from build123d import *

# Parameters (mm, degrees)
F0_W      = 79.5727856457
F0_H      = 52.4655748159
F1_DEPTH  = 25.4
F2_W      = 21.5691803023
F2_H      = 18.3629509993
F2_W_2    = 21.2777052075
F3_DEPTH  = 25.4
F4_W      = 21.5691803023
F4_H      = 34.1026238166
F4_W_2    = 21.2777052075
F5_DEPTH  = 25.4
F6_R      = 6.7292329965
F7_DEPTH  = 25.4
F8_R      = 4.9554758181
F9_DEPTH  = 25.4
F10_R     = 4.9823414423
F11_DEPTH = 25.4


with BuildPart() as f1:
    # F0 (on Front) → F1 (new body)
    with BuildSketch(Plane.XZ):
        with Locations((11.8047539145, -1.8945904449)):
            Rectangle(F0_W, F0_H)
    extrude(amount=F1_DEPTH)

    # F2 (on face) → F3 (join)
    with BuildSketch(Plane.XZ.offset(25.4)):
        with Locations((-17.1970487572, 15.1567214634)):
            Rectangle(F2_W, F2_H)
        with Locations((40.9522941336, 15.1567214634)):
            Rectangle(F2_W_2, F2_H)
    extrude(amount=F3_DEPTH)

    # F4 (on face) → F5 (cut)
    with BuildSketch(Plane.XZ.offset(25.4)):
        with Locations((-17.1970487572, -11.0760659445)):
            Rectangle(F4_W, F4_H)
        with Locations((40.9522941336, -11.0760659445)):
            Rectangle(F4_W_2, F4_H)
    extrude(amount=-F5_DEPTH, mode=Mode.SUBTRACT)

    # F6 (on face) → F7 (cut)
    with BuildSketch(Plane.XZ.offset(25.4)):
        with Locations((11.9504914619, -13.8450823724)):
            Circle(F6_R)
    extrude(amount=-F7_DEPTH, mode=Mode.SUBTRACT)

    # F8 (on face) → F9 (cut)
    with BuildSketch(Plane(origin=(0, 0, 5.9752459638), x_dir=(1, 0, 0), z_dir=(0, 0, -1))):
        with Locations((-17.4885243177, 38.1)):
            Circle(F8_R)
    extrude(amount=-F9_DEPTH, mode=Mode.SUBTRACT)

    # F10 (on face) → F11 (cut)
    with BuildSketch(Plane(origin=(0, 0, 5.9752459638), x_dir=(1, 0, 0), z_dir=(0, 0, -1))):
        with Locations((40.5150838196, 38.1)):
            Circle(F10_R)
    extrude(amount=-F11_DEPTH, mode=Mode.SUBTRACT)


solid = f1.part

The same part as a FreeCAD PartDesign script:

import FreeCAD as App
import Part
import Sketcher

V = App.Vector
Q = App.Units.Quantity


def add_polygon(sketch, points):
    """Adds a closed chain of lines whose ends are joined by coincident constraints."""
    first, n = sketch.GeometryCount, len(points)
    for a, b in zip(points, points[1:] + points[:1]):
        sketch.addGeometry(Part.LineSegment(App.Vector(*a, 0), App.Vector(*b, 0)), False)
    for i in range(n):
        sketch.addConstraint(Sketcher.Constraint("Coincident", first + i, 2, first + (i + 1) % n, 1))

doc = App.newDocument("Part")
body = doc.addObject("PartDesign::Body", "Body")

# Sketch on XZ plane
sketch1 = body.newObject("Sketcher::SketchObject", "Sketch")
sketch1.AttachmentSupport = (doc.getObject("XZ_Plane"), [""])
sketch1.MapMode = "FlatFace"
add_polygon(sketch1, [(-28, 24), (-28, -28), (52, -28), (52, 24)])  # lines 0-3
sketch1.addConstraint([
    Sketcher.Constraint("Vertical", 0),
    Sketcher.Constraint("Horizontal", 1),
    Sketcher.Constraint("Vertical", 2),
    Sketcher.Constraint("Horizontal", 3),
    Sketcher.Constraint("DistanceX", 1, 1, 1, 2, Q("79.572786 mm")),
    Sketcher.Constraint("DistanceY", 0, 2, 0, 1, Q("52.465575 mm")),
    Sketcher.Constraint("DistanceX", 0, 2, -1, 1, Q("27.981639 mm")),
    Sketcher.Constraint("DistanceY", 0, 2, -1, 1, Q("28.127378 mm")),
])
pad1 = body.newObject("PartDesign::Pad", "Pad")
pad1.Profile = sketch1
pad1.Length = Q("1 in")

# Sketch on XZ plane
sketch2 = body.newObject("Sketcher::SketchObject", "Sketch001")
sketch2.AttachmentSupport = (doc.getObject("XZ_Plane"), [""])
sketch2.MapMode = "FlatFace"
sketch2.AttachmentOffset = App.Placement(V(0, 0, 1 * 25.4), App.Rotation())
add_polygon(sketch2, [(-28, 24), (-28, 6), (-6, 6), (-6, 24)])  # lines 0-3
add_polygon(sketch2, [(30, 24), (30, 6), (52, 6), (52, 24)])  # lines 4-7
sketch2.addConstraint([
    Sketcher.Constraint("Vertical", 0),
    Sketcher.Constraint("Horizontal", 1),
    Sketcher.Constraint("Vertical", 2),
    Sketcher.Constraint("Horizontal", 3),
    Sketcher.Constraint("Vertical", 4),
    Sketcher.Constraint("Horizontal", 5),
    Sketcher.Constraint("Vertical", 6),
    Sketcher.Constraint("Horizontal", 7),
    Sketcher.Constraint("Horizontal", 1, 2, 4, 2),
    Sketcher.Constraint("Horizontal", 3, 2, 6, 2),
    Sketcher.Constraint("DistanceX", 1, 1, 1, 2, Q("21.56918 mm")),
    Sketcher.Constraint("DistanceY", 0, 2, 0, 1, Q("18.362951 mm")),
    Sketcher.Constraint("DistanceX", 1, 2, 4, 2, Q("36.7259 mm")),
    Sketcher.Constraint("DistanceX", 5, 1, 5, 2, Q("21.277705 mm")),
    Sketcher.Constraint("DistanceX", 0, 2, -1, 1, Q("27.981639 mm")),
    Sketcher.Constraint("DistanceY", -1, 1, 0, 2, Q("5.975246 mm")),
])
pad2 = body.newObject("PartDesign::Pad", "Pad001")
pad2.Profile = sketch2
pad2.Length = Q("1 in")

# Sketch on XZ plane
sketch3 = body.newObject("Sketcher::SketchObject", "Sketch002")
sketch3.AttachmentSupport = (doc.getObject("XZ_Plane"), [""])
sketch3.MapMode = "FlatFace"
sketch3.AttachmentOffset = App.Placement(V(0, 0, 1 * 25.4), App.Rotation())
add_polygon(sketch3, [(-28, 6), (-28, -28), (-6, -28), (-6, 6)])  # lines 0-3
add_polygon(sketch3, [(30, 6), (30, -28), (52, -28), (52, 6)])  # lines 4-7
sketch3.addConstraint([
    Sketcher.Constraint("Vertical", 0),
    Sketcher.Constraint("Horizontal", 1),
    Sketcher.Constraint("Vertical", 2),
    Sketcher.Constraint("Horizontal", 3),
    Sketcher.Constraint("Vertical", 4),
    Sketcher.Constraint("Horizontal", 5),
    Sketcher.Constraint("Vertical", 6),
    Sketcher.Constraint("Horizontal", 7),
    Sketcher.Constraint("Horizontal", 1, 2, 4, 2),
    Sketcher.Constraint("Horizontal", 3, 2, 6, 2),
    Sketcher.Constraint("DistanceX", 1, 1, 1, 2, Q("21.56918 mm")),
    Sketcher.Constraint("DistanceX", 1, 2, 4, 2, Q("36.7259 mm")),
    Sketcher.Constraint("DistanceX", 5, 1, 5, 2, Q("21.277705 mm")),
    Sketcher.Constraint("DistanceY", 0, 2, 0, 1, Q("34.102624 mm")),
    Sketcher.Constraint("DistanceX", 0, 2, -1, 1, Q("27.981639 mm")),
    Sketcher.Constraint("DistanceY", 0, 2, -1, 1, Q("28.127378 mm")),
])
pocket1 = body.newObject("PartDesign::Pocket", "Pocket")
pocket1.Profile = sketch3
pocket1.Length = Q("1 in")

# Sketch on XZ plane
sketch4 = body.newObject("Sketcher::SketchObject", "Sketch003")
sketch4.AttachmentSupport = (doc.getObject("XZ_Plane"), [""])
sketch4.MapMode = "FlatFace"
sketch4.AttachmentOffset = App.Placement(V(0, 0, 1 * 25.4), App.Rotation())
sketch4.addGeometry(Part.Circle(V(12, -14, 0), V(0, 0, 1), 7), False)
sketch4.addConstraint([
    Sketcher.Constraint("Diameter", 0, Q("13.458466 mm")),
    Sketcher.Constraint("DistanceX", -1, 1, 0, 3, Q("11.950491 mm")),
    Sketcher.Constraint("DistanceY", 0, 3, -1, 1, Q("13.845082 mm")),
])
pocket2 = body.newObject("PartDesign::Pocket", "Pocket001")
pocket2.Profile = sketch4
pocket2.Length = Q("1 in")

# Sketch on XY plane
sketch5 = body.newObject("Sketcher::SketchObject", "Sketch004")
sketch5.AttachmentSupport = (doc.getObject("XY_Plane"), [""])
sketch5.MapMode = "FlatFace"
sketch5.AttachmentOffset = App.Placement(V(0, 0, 5.975246), App.Rotation())
sketch5.addGeometry(Part.Circle(V(-17.5, -38.1, 0), V(0, 0, 1), 5), False)
sketch5.addConstraint([
    Sketcher.Constraint("DistanceY", 0, 3, -1, 1, Q("1.5 in")),
    Sketcher.Constraint("Diameter", 0, Q("9.910952 mm")),
    Sketcher.Constraint("DistanceX", 0, 3, -1, 1, Q("17.488524 mm")),
])
pocket3 = body.newObject("PartDesign::Pocket", "Pocket002")
pocket3.Profile = sketch5
pocket3.Length = Q("1 in")
pocket3.Reversed = True

# Sketch on XY plane
sketch6 = body.newObject("Sketcher::SketchObject", "Sketch005")
sketch6.AttachmentSupport = (doc.getObject("XY_Plane"), [""])
sketch6.MapMode = "FlatFace"
sketch6.AttachmentOffset = App.Placement(V(0, 0, 5.975246), App.Rotation())
sketch6.addGeometry(Part.Circle(V(40.5, -38.1, 0), V(0, 0, 1), 5), False)
sketch6.addConstraint([
    Sketcher.Constraint("DistanceY", 0, 3, -1, 1, Q("1.5 in")),
    Sketcher.Constraint("Diameter", 0, Q("9.964683 mm")),
    Sketcher.Constraint("DistanceX", -1, 1, 0, 3, Q("40.515084 mm")),
])
pocket4 = body.newObject("PartDesign::Pocket", "Pocket003")
pocket4.Profile = sketch6
pocket4.Length = Q("1 in")
pocket4.Reversed = True

doc.recompute()
